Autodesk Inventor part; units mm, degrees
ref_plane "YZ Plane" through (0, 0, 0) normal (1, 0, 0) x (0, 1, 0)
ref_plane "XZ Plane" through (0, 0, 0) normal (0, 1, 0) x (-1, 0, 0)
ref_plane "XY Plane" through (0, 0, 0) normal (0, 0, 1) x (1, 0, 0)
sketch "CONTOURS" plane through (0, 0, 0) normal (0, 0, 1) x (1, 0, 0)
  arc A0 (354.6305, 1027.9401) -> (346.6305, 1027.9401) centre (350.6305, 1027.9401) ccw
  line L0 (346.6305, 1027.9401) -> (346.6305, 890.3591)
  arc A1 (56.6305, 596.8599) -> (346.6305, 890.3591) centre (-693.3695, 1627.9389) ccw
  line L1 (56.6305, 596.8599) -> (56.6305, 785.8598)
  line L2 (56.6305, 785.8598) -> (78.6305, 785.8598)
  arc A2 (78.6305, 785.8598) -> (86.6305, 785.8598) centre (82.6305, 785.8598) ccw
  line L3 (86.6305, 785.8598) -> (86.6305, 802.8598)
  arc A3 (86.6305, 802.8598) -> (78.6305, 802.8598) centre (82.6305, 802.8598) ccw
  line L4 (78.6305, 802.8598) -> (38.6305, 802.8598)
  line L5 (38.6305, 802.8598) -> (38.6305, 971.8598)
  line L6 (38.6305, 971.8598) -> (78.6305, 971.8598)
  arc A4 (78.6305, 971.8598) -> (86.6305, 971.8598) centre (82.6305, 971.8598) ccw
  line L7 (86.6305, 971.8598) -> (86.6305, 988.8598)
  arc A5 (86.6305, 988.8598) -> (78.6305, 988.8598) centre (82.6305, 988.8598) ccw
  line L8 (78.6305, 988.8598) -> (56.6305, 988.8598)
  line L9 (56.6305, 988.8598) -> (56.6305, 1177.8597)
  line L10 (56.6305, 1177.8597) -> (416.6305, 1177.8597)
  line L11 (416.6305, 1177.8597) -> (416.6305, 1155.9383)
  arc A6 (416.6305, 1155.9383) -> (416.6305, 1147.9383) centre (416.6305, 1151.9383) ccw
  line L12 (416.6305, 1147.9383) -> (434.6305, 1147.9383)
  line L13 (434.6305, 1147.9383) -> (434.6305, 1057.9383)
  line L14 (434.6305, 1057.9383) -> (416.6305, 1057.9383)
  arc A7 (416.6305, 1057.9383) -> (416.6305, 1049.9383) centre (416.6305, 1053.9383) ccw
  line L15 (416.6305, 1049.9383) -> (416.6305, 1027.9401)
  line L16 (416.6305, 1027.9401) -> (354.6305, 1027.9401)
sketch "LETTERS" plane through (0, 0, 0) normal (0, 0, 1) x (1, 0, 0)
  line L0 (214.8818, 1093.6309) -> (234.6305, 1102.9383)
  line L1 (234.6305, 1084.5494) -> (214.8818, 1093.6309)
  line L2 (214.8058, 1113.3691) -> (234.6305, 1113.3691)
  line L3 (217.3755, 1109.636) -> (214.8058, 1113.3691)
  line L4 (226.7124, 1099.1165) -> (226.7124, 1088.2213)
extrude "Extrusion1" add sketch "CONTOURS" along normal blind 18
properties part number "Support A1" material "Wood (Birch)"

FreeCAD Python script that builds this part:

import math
import FreeCAD as App
import Part
import Sketcher

V = App.Vector
Q = App.Units.Quantity

doc = App.newDocument("Part")
body = doc.addObject("PartDesign::Body", "Body")

# Sketch on XY plane
sketch1 = body.newObject("Sketcher::SketchObject", "Sketch")
sketch1.AttachmentSupport = (doc.getObject("XY_Plane"), [""])
sketch1.MapMode = "FlatFace"
sketch1.addGeometry([
    Part.ArcOfCircle(Part.Circle(V(350.6305, 1027.9401, 0), V(0, 0, 1), 4), math.radians(0), math.radians(180)),  # 0
    Part.LineSegment(V(354.6305, 1027.9401, 0), V(416.6305, 1027.9401, 0)),  # 1
    Part.LineSegment(V(416.6305, 1027.9401, 0), V(416.6305, 1049.9383, 0)),  # 2
    Part.ArcOfCircle(Part.Circle(V(416.6305, 1053.9383, 0), V(0, 0, 1), 4), math.radians(90), math.radians(270)),  # 3
    Part.LineSegment(V(416.6305, 1057.9383, 0), V(434.6305, 1057.9383, 0)),  # 4
    Part.LineSegment(V(434.6305, 1057.9383, 0), V(434.6305, 1147.9383, 0)),  # 5
    Part.LineSegment(V(434.6305, 1147.9383, 0), V(416.6305, 1147.9383, 0)),  # 6
    Part.ArcOfCircle(Part.Circle(V(416.6305, 1151.9383, 0), V(0, 0, 1), 4), math.radians(90), math.radians(270)),  # 7
    Part.LineSegment(V(416.6305, 1155.9383, 0), V(416.6305, 1177.8597, 0)),  # 8
    Part.LineSegment(V(416.6305, 1177.8597, 0), V(56.6305, 1177.8597, 0)),  # 9
    Part.LineSegment(V(56.6305, 1177.8597, 0), V(56.6305, 988.8598, 0)),  # 10
    Part.LineSegment(V(56.6305, 988.8598, 0), V(78.6305, 988.8598, 0)),  # 11
    Part.ArcOfCircle(Part.Circle(V(82.6305, 988.8598, 0), V(0, 0, 1), 4), math.radians(0), math.radians(180)),  # 12
    Part.LineSegment(V(86.6305, 988.8598, 0), V(86.6305, 971.8598, 0)),  # 13
    Part.ArcOfCircle(Part.Circle(V(82.6305, 971.8598, 0), V(0, 0, 1), 4), math.radians(180), math.radians(360)),  # 14
    Part.LineSegment(V(78.6305, 971.8598, 0), V(38.6305, 971.8598, 0)),  # 15
    Part.LineSegment(V(38.6305, 971.8598, 0), V(38.6305, 802.8598, 0)),  # 16
    Part.LineSegment(V(38.6305, 802.8598, 0), V(78.6305, 802.8598, 0)),  # 17
    Part.ArcOfCircle(Part.Circle(V(82.6305, 802.8598, 0), V(0, 0, 1), 4), math.radians(0), math.radians(180)),  # 18
    Part.LineSegment(V(86.6305, 802.8598, 0), V(86.6305, 785.8598, 0)),  # 19
    Part.ArcOfCircle(Part.Circle(V(82.6305, 785.8598, 0), V(0, 0, 1), 4), math.radians(180), math.radians(360)),  # 20
    Part.LineSegment(V(78.6305, 785.8598, 0), V(56.6305, 785.8598, 0)),  # 21
    Part.LineSegment(V(56.6305, 785.8598, 0), V(56.6305, 596.8599, 0)),  # 22
    Part.ArcOfCircle(Part.Circle(V(-693.3695, 1627.9389, 0), V(0, 0, 1), 1274.99957), math.radians(-53.968107), math.radians(-35.344698)),  # 23
    Part.LineSegment(V(346.6305, 890.3591, 0), V(346.6305, 1027.9401, 0)),  # 24
], False)
sketch1.addConstraint([
    Sketcher.Constraint("Coincident", 0, 1, 1, 1),
    Sketcher.Constraint("Coincident", 1, 2, 2, 1),
    Sketcher.Constraint("Coincident", 2, 2, 3, 2),
    Sketcher.Constraint("Tangent", 3, 1, 4, 1),
    Sketcher.Constraint("Coincident", 4, 2, 5, 1),
    Sketcher.Constraint("Coincident", 5, 2, 6, 1),
    Sketcher.Constraint("Tangent", 6, 2, 7, 2),
    Sketcher.Constraint("Coincident", 7, 1, 8, 1),
    Sketcher.Constraint("Coincident", 8, 2, 9, 1),
    Sketcher.Constraint("Coincident", 9, 2, 10, 1),
    Sketcher.Constraint("Coincident", 10, 2, 11, 1),
    Sketcher.Constraint("Coincident", 11, 2, 12, 2),
    Sketcher.Constraint("Tangent", 12, 1, 13, 1),
    Sketcher.Constraint("Tangent", 13, 2, 14, 2),
    Sketcher.Constraint("Coincident", 14, 1, 15, 1),
    Sketcher.Constraint("Coincident", 15, 2, 16, 1),
    Sketcher.Constraint("Coincident", 16, 2, 17, 1),
    Sketcher.Constraint("Coincident", 17, 2, 18, 2),
    Sketcher.Constraint("Tangent", 18, 1, 19, 1),
    Sketcher.Constraint("Tangent", 19, 2, 20, 2),
    Sketcher.Constraint("Coincident", 20, 1, 21, 1),
    Sketcher.Constraint("Coincident", 21, 2, 22, 1),
    Sketcher.Constraint("Coincident", 22, 2, 23, 1),
    Sketcher.Constraint("Coincident", 23, 2, 24, 1),
    Sketcher.Constraint("Tangent", 24, 2, 0, 2),
    Sketcher.Constraint("Horizontal", 1),
    Sketcher.Constraint("Vertical", 2),
    Sketcher.Constraint("Horizontal", 4),
    Sketcher.Constraint("Vertical", 5),
    Sketcher.Constraint("Horizontal", 6),
    Sketcher.Constraint("Vertical", 8),
    Sketcher.Constraint("Horizontal", 9),
    Sketcher.Constraint("Vertical", 10),
    Sketcher.Constraint("Horizontal", 11),
    Sketcher.Constraint("Vertical", 13),
    Sketcher.Constraint("Horizontal", 15),
    Sketcher.Constraint("Vertical", 16),
    Sketcher.Constraint("Horizontal", 17),
    Sketcher.Constraint("Vertical", 19),
    Sketcher.Constraint("Horizontal", 21),
    Sketcher.Constraint("Vertical", 22),
    Sketcher.Constraint("Vertical", 24),
    Sketcher.Constraint("Equal", 0, 3),
    Sketcher.Constraint("Equal", 3, 7),
    Sketcher.Constraint("Equal", 7, 12),
    Sketcher.Constraint("Equal", 12, 14),
    Sketcher.Constraint("Equal", 14, 18),
    Sketcher.Constraint("Equal", 18, 20),
    Sketcher.Constraint("Horizontal", 12, 3, 10, 2),
    Sketcher.Constraint("Horizontal", 13, 2, 14, 1),
    Sketcher.Constraint("Horizontal", 18, 3, 16, 2),
    Sketcher.Constraint("Horizontal", 19, 2, 20, 1),
    Sketcher.Constraint("Horizontal", 1, 2, 24, 2),
    Sketcher.Constraint("Vertical", 3, 3, 7, 3),
    Sketcher.Constraint("Vertical", 14, 3, 18, 3),
    Sketcher.Constraint("Vertical", 7, 3, 1, 2),
    Sketcher.Constraint("Vertical", 6, 2, 7, 1),
    Sketcher.Constraint("Vertical", 10, 2, 21, 2),
    Sketcher.Constraint("Equal", 13, 19),
    Sketcher.Constraint("Equal", 10, 22),
    Sketcher.Constraint("Radius", 0, Q("4 mm")),
    Sketcher.Constraint("DistanceX", 1, 1, 1, 2, Q("62 mm")),
    Sketcher.Constraint("DistanceX", 4, 1, 4, 2, Q("18 mm")),
    Sketcher.Constraint("DistanceX", 9, 2, 9, 1, Q("360 mm")),
    Sketcher.Constraint("DistanceX", 11, 1, 11, 2, Q("22 mm")),
    Sketcher.Constraint("DistanceX", 15, 2, 15, 1, Q("40 mm")),
    Sketcher.Constraint("DistanceY", 5, 1, 5, 2, Q("90 mm")),
    Sketcher.Constraint("DistanceY", 10, 2, 10, 1, Q("189 mm")),
    Sketcher.Constraint("DistanceY", 13, 2, 13, 1, Q("17 mm")),
    Sketcher.Constraint("DistanceY", 16, 2, 16, 1, Q("169 mm")),
    Sketcher.Constraint("DistanceX", 23, 3, 12, 3, Q("776 mm")),
    Sketcher.Constraint("Radius", 23, Q("1274.9996 mm")),
    Sketcher.Constraint("DistanceY", 24, 1, 24, 2, Q("137.581 mm")),
    Sketcher.Constraint("DistanceY", -1, 1, 0, 3, Q("1027.94 mm")),
    Sketcher.Constraint("DistanceY", 2, 1, 2, 2, Q("21.9982 mm")),
    Sketcher.Constraint("DistanceX", -1, 1, 0, 3, Q("350.6305 mm")),
])
pad1 = body.newObject("PartDesign::Pad", "Pad")
pad1.Profile = sketch1
pad1.Length = 18

doc.recompute()
